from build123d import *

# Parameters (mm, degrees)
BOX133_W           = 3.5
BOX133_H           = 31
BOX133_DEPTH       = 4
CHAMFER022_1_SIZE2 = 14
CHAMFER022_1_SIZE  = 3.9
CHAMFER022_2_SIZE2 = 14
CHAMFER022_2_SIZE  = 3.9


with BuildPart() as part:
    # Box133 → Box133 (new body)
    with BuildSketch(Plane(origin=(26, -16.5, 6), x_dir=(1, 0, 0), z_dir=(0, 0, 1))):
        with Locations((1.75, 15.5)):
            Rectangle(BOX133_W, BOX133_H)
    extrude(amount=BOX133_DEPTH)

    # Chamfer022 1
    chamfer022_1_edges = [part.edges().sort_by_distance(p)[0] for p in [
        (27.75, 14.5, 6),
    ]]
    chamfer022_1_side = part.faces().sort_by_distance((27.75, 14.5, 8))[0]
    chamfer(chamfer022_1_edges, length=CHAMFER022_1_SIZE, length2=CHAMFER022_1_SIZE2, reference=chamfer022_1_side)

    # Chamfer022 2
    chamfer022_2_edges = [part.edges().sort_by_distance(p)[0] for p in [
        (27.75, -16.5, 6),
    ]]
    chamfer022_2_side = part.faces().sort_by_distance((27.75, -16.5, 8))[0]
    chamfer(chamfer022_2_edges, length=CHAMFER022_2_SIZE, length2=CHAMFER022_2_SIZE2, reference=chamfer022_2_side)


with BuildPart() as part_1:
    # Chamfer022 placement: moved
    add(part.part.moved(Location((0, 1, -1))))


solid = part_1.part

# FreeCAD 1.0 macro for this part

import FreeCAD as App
import Part
import Sketcher
from FreeCAD import Vector
Q = App.Units.Quantity


def edges_at(feature, points):
    """Names of the edges that pass closest to the given points."""
    edges = feature.Shape.Edges
    near = lambda p: min(range(len(edges)), key=lambda i: edges[i].distToShape(Part.Vertex(*p))[0])
    return sorted({f"Edge{near(p) + 1}" for p in points})

doc = App.newDocument("Part")
body = doc.addObject("PartDesign::Body", "Body")

sketch1 = doc.addObject("Sketcher::SketchObject", "Sketch")
body.addObject(sketch1)
sketch1.AttachmentSupport = (doc.XY_Plane, [""])
sketch1.MapMode = "FlatFace"
sketch1.AttachmentOffset = App.Placement(Vector(0, 0, 6), App.Rotation())
sketch1.addGeometry([
    Part.LineSegment(Vector(26, 14.5, 0), Vector(26, -16.5, 0)),
    Part.LineSegment(Vector(26, -16.5, 0), Vector(29.5, -16.5, 0)),
    Part.LineSegment(Vector(29.5, -16.5, 0), Vector(29.5, 14.5, 0)),
    Part.LineSegment(Vector(29.5, 14.5, 0), Vector(26, 14.5, 0)),
], False)
sketch1.addConstraint([
    Sketcher.Constraint("Coincident", 0, 2, 1, 1),
    Sketcher.Constraint("Coincident", 1, 2, 2, 1),
    Sketcher.Constraint("Coincident", 2, 2, 3, 1),
    Sketcher.Constraint("Coincident", 3, 2, 0, 1),
    Sketcher.Constraint("Vertical", 0),
    Sketcher.Constraint("Horizontal", 1),
    Sketcher.Constraint("Vertical", 2),
    Sketcher.Constraint("Horizontal", 3),
    Sketcher.Constraint("DistanceY", 0, 2, 0, 1, Q("31 mm")),
    Sketcher.Constraint("DistanceX", 1, 1, 1, 2, Q("3.5 mm")),
    Sketcher.Constraint("DistanceX", -1, 1, 0, 2, Q("26 mm")),
    Sketcher.Constraint("DistanceY", 0, 2, -1, 1, Q("16.5 mm")),
])
pad1 = doc.addObject("PartDesign::Pad", "Pad")
body.addObject(pad1)
pad1.Profile = sketch1
pad1.Length = 4
doc.recompute()

chamfer = doc.addObject("PartDesign::Chamfer", "Chamfer")
body.addObject(chamfer)
chamfer.Base = (pad1, edges_at(pad1, [(27.75, 14.5, 6)]))
chamfer.ChamferType = "Two distances"
chamfer.Size = 3.9
chamfer.Size2 = 14
doc.recompute()

chamfer2 = doc.addObject("PartDesign::Chamfer", "Chamfer001")
body.addObject(chamfer2)
chamfer2.Base = (chamfer, edges_at(chamfer, [(27.75, -16.5, 6)]))
chamfer2.ChamferType = "Two distances"
chamfer2.Size = 3.9
chamfer2.Size2 = 14
chamfer2.FlipDirection = True
body2 = doc.addObject("PartDesign::Body", "Body001")
doc.recompute()

body.Placement = App.Placement(Vector(0, 1, -1), App.Rotation(Vector(0, 0, 1), 0))
boolean = doc.addObject("PartDesign::Boolean", "Boolean")
body2.addObject(boolean)
boolean.Type = "Fuse"
boolean.addObjects([body])

doc.recompute()
